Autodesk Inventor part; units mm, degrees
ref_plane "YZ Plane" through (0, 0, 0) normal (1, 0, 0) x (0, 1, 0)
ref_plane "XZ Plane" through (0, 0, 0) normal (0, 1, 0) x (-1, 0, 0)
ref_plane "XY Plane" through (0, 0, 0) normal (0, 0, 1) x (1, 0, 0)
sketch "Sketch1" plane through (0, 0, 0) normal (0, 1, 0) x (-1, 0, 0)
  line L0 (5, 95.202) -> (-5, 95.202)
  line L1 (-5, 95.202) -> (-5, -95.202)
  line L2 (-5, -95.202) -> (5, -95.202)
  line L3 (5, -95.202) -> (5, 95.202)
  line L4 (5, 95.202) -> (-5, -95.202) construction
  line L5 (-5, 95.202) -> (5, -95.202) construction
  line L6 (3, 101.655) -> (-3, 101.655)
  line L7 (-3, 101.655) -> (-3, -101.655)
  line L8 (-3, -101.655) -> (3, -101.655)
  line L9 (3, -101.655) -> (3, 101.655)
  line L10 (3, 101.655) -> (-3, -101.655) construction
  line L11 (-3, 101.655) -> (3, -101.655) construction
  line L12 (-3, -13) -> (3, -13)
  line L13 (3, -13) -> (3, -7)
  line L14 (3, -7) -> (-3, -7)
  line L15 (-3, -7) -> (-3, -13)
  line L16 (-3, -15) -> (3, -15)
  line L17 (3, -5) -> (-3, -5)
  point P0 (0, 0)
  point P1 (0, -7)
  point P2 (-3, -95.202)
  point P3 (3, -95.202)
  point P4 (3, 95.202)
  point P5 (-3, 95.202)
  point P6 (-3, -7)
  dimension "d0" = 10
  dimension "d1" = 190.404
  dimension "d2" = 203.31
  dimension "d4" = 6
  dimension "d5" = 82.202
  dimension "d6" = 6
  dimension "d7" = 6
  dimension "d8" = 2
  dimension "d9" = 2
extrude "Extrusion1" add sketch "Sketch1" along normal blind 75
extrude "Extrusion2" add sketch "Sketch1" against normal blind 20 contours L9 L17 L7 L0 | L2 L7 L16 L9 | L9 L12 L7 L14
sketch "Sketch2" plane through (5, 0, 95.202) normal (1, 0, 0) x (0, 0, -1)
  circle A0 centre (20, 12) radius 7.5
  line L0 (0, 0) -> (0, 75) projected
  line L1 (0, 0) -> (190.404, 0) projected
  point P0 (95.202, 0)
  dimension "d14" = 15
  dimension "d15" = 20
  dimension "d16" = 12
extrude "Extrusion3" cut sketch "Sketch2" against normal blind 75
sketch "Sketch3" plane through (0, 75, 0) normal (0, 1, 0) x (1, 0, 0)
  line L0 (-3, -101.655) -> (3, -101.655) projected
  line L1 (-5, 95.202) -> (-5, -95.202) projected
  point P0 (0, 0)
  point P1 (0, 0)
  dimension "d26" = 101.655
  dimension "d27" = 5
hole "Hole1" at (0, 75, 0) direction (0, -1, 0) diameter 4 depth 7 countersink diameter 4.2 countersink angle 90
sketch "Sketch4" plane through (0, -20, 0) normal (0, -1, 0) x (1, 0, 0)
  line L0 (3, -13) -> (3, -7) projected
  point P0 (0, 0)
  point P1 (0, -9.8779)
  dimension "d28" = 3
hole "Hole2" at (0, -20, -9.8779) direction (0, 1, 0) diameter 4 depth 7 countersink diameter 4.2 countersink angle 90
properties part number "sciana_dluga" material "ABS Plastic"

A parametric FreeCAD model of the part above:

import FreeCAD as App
import Part
import Sketcher

V = App.Vector
Q = App.Units.Quantity


def add_polygon(sketch, points):
    """Adds a closed chain of lines whose ends are joined by coincident constraints."""
    first, n = sketch.GeometryCount, len(points)
    for a, b in zip(points, points[1:] + points[:1]):
        sketch.addGeometry(Part.LineSegment(App.Vector(*a, 0), App.Vector(*b, 0)), False)
    for i in range(n):
        sketch.addConstraint(Sketcher.Constraint("Coincident", first + i, 2, first + (i + 1) % n, 1))

doc = App.newDocument("Part")
body = doc.addObject("PartDesign::Body", "Body")

# Sketch on XZ plane
sketch1 = doc.addObject("Sketcher::SketchObject", "Sketch")
body.addObject(sketch1)
sketch1.AttachmentSupport = (doc.XZ_Plane, [""])
sketch1.MapMode = "FlatFace"
add_polygon(sketch1, [(-5, -95.2), (-5, 95.2), (-3, 95.2), (-3, 101.7), (3, 101.7), (3, 95.2), (5, 95.2), (5, -95.2), (3, -95.2), (3, -101.7), (-3, -101.7), (-3, -95.2)])  # lines 0-11
sketch1.addConstraint([
    Sketcher.Constraint("Vertical", 0),
    Sketcher.Constraint("Horizontal", 1),
    Sketcher.Constraint("Vertical", 2),
    Sketcher.Constraint("Horizontal", 3),
    Sketcher.Constraint("Vertical", 4),
    Sketcher.Constraint("Horizontal", 5),
    Sketcher.Constraint("Vertical", 6),
    Sketcher.Constraint("Horizontal", 7),
    Sketcher.Constraint("Vertical", 8),
    Sketcher.Constraint("Horizontal", 9),
    Sketcher.Constraint("Vertical", 10),
    Sketcher.Constraint("Horizontal", 11),
    Sketcher.Constraint("Symmetric", 0, 2, 6, 2, -1, 1),
    Sketcher.Constraint("Symmetric", 2, 2, 8, 2, -1, 1),
    Sketcher.Constraint("Symmetric", 4, 2, 10, 2, -1, 1),
    Sketcher.Constraint("Symmetric", 1, 2, 4, 2, -2),
    Sketcher.Constraint("DistanceX", 1, 1, 1, 2, Q("2 mm")),
    Sketcher.Constraint("DistanceX", 3, 1, 3, 2, Q("6 mm")),
    Sketcher.Constraint("DistanceY", 0, 1, 0, 2, Q("190.404 mm")),
    Sketcher.Constraint("DistanceY", 2, 1, 2, 2, Q("6.453 mm")),
])
pad1 = doc.addObject("PartDesign::Pad", "Pad")
body.addObject(pad1)
pad1.Profile = sketch1
pad1.Length = 75
pad1.Reversed = True

# Sketch on XZ plane
sketch2 = doc.addObject("Sketcher::SketchObject", "Sketch001")
body.addObject(sketch2)
sketch2.AttachmentSupport = (doc.XZ_Plane, [""])
sketch2.MapMode = "FlatFace"
add_polygon(sketch2, [(-3, -5), (-3, 95), (3, 95), (3, -5)])  # lines 0-3
add_polygon(sketch2, [(3, -95), (-3, -95), (-3, -15), (3, -15)])  # lines 4-7
add_polygon(sketch2, [(-3, -13), (-3, -7), (3, -7), (3, -13)])  # lines 8-11
sketch2.addConstraint([
    Sketcher.Constraint("Vertical", 0),
    Sketcher.Constraint("Horizontal", 1),
    Sketcher.Constraint("Vertical", 2),
    Sketcher.Constraint("Horizontal", 3),
    Sketcher.Constraint("Horizontal", 4),
    Sketcher.Constraint("Vertical", 5),
    Sketcher.Constraint("Horizontal", 6),
    Sketcher.Constraint("Vertical", 7),
    Sketcher.Constraint("Vertical", 8),
    Sketcher.Constraint("Horizontal", 9),
    Sketcher.Constraint("Vertical", 10),
    Sketcher.Constraint("Horizontal", 11),
    Sketcher.Constraint("Symmetric", 1, 2, 4, 2, -1, 1),
    Sketcher.Constraint("Vertical", 3, 2, 4, 2),
    Sketcher.Constraint("Vertical", 2, 2, 6, 2),
    Sketcher.Constraint("Vertical", 5, 2, 8, 2),
    Sketcher.Constraint("Vertical", 7, 2, 9, 2),
    Sketcher.Constraint("Equal", 11, 8),
    Sketcher.Constraint("DistanceX", 1, 1, 1, 2, Q("6 mm")),
    Sketcher.Constraint("DistanceY", 5, 2, 3, 2, Q("10 mm")),
    Sketcher.Constraint("DistanceY", 8, 2, 3, 2, Q("2 mm")),
    Sketcher.Constraint("DistanceY", 2, 2, -1, 1, Q("5 mm")),
    Sketcher.Constraint("DistanceY", 4, 2, 0, 2, Q("190.404 mm")),
])
pad2 = doc.addObject("PartDesign::Pad", "Pad001")
body.addObject(pad2)
pad2.Profile = sketch2
pad2.Length = 20

# Sketch on YZ plane
sketch3 = doc.addObject("Sketcher::SketchObject", "Sketch002")
body.addObject(sketch3)
sketch3.AttachmentSupport = (doc.YZ_Plane, [""])
sketch3.MapMode = "FlatFace"
sketch3.AttachmentOffset = App.Placement(V(0, 0, 5), App.Rotation())
sketch3.addGeometry(Part.Circle(V(12, 75, 0), V(0, 0, 1), 8), False)
sketch3.addConstraint([
    Sketcher.Constraint("Diameter", 0, Q("15 mm")),
    Sketcher.Constraint("DistanceX", -1, 1, 0, 3, Q("12 mm")),
    Sketcher.Constraint("DistanceY", -1, 1, 0, 3, Q("75.202 mm")),
])
pocket1 = doc.addObject("PartDesign::Pocket", "Pocket")
body.addObject(pocket1)
pocket1.Profile = sketch3
pocket1.Length = 75

# Sketch on XZ plane
sketch4 = doc.addObject("Sketcher::SketchObject", "Sketch003")
body.addObject(sketch4)
sketch4.AttachmentSupport = (doc.XZ_Plane, [""])
sketch4.MapMode = "FlatFace"
sketch4.AttachmentOffset = App.Placement(V(0, 0, -75), App.Rotation())
sketch4.addGeometry(Part.Circle(V(0, 0, 0), V(0, 0, 1), 2), False)
sketch4.addConstraint([
    Sketcher.Constraint("Coincident", 0, 3, -1, 1),
    Sketcher.Constraint("Diameter", 0, Q("4 mm")),
])
doc.recompute()
hole = doc.addObject("PartDesign::Hole", "Hole")
body.addObject(hole)
hole.Profile = sketch4
hole.ThreadType = "None"
hole.Diameter = 4
hole.DepthType = "Dimension"
hole.Depth = 7
hole.DrillPoint = "Flat"
hole.HoleCutType = "Countersink"
hole.HoleCutDiameter = 4.2
hole.HoleCutCountersinkAngle = 90
hole.Reversed = True

# Sketch on XZ plane
sketch5 = doc.addObject("Sketcher::SketchObject", "Sketch004")
body.addObject(sketch5)
sketch5.AttachmentSupport = (doc.XZ_Plane, [""])
sketch5.MapMode = "FlatFace"
sketch5.AttachmentOffset = App.Placement(V(0, 0, 20), App.Rotation())
sketch5.addGeometry(Part.Circle(V(0, -9.9, 0), V(0, 0, 1), 2), False)
sketch5.addConstraint([
    Sketcher.Constraint("PointOnObject", 0, 3, -2),
    Sketcher.Constraint("Diameter", 0, Q("4 mm")),
    Sketcher.Constraint("DistanceY", 0, 3, -1, 1, Q("9.878 mm")),
])
doc.recompute()
hole2 = doc.addObject("PartDesign::Hole", "Hole001")
body.addObject(hole2)
hole2.Profile = sketch5
hole2.ThreadType = "None"
hole2.Diameter = 4
hole2.DepthType = "Dimension"
hole2.Depth = 7
hole2.DrillPoint = "Flat"
hole2.HoleCutType = "Countersink"
hole2.HoleCutDiameter = 4.2
hole2.HoleCutCountersinkAngle = 90

doc.recompute()
